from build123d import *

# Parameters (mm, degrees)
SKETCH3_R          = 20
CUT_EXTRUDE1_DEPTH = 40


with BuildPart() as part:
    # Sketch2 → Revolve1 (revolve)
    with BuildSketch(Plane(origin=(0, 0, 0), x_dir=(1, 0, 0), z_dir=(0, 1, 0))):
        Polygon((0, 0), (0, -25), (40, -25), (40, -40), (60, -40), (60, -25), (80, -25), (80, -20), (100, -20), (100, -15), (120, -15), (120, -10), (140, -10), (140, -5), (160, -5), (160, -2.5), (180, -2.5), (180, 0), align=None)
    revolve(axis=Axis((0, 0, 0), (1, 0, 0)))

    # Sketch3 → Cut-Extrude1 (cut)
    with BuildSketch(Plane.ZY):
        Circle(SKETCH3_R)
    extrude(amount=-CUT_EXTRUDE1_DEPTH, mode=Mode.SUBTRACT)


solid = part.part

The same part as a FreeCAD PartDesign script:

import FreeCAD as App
import Part
import Sketcher

V = App.Vector

doc = App.newDocument("Part")
body = doc.addObject("PartDesign::Body", "Body")

sketch1 = doc.addObject("Sketcher::SketchObject", "Sketch")
body.addObject(sketch1)
sketch1.AttachmentSupport = (doc.XZ_Plane, [""])
sketch1.MapMode = "FlatFace"
sketch1.addGeometry([
    Part.LineSegment(V(0, 0, 0), V(0, 25, 0)),
    Part.LineSegment(V(0, 25, 0), V(40, 25, 0)),
    Part.LineSegment(V(40, 25, 0), V(40, 40, 0)),
    Part.LineSegment(V(40, 40, 0), V(60, 40, 0)),
    Part.LineSegment(V(60, 40, 0), V(60, 25, 0)),
    Part.LineSegment(V(60, 25, 0), V(80, 25, 0)),
    Part.LineSegment(V(80, 25, 0), V(80, 20, 0)),
    Part.LineSegment(V(80, 20, 0), V(100, 20, 0)),
    Part.LineSegment(V(100, 20, 0), V(100, 15, 0)),
    Part.LineSegment(V(100, 15, 0), V(120, 15, 0)),
    Part.LineSegment(V(120, 15, 0), V(120, 10, 0)),
    Part.LineSegment(V(120, 10, 0), V(140, 10, 0)),
    Part.LineSegment(V(140, 10, 0), V(140, 5, 0)),
    Part.LineSegment(V(140, 5, 0), V(160, 5, 0)),
    Part.LineSegment(V(160, 5, 0), V(160, 2.5, 0)),
    Part.LineSegment(V(160, 2.5, 0), V(180, 2.5, 0)),
    Part.LineSegment(V(180, 2.5, 0), V(180, 0, 0)),
    Part.LineSegment(V(180, 0, 0), V(0, 0, 0)),
], False)
sketch1.addConstraint([
    Sketcher.Constraint("Coincident", 0, 2, 1, 1),
    Sketcher.Constraint("Coincident", 1, 2, 2, 1),
    Sketcher.Constraint("Coincident", 2, 2, 3, 1),
    Sketcher.Constraint("Coincident", 3, 2, 4, 1),
    Sketcher.Constraint("Coincident", 4, 2, 5, 1),
    Sketcher.Constraint("Coincident", 5, 2, 6, 1),
    Sketcher.Constraint("Coincident", 6, 2, 7, 1),
    Sketcher.Constraint("Coincident", 7, 2, 8, 1),
    Sketcher.Constraint("Coincident", 8, 2, 9, 1),
    Sketcher.Constraint("Coincident", 9, 2, 10, 1),
    Sketcher.Constraint("Coincident", 10, 2, 11, 1),
    Sketcher.Constraint("Coincident", 11, 2, 12, 1),
    Sketcher.Constraint("Coincident", 12, 2, 13, 1),
    Sketcher.Constraint("Coincident", 13, 2, 14, 1),
    Sketcher.Constraint("Coincident", 14, 2, 15, 1),
    Sketcher.Constraint("Coincident", 15, 2, 16, 1),
    Sketcher.Constraint("Coincident", 16, 2, 17, 1),
    Sketcher.Constraint("Coincident", 17, 2, 0, 1),
    Sketcher.Constraint("Vertical", 0),
    Sketcher.Constraint("Horizontal", 1),
    Sketcher.Constraint("Vertical", 2),
    Sketcher.Constraint("Horizontal", 3),
    Sketcher.Constraint("Vertical", 4),
    Sketcher.Constraint("Horizontal", 5),
    Sketcher.Constraint("Vertical", 6),
    Sketcher.Constraint("Horizontal", 7),
    Sketcher.Constraint("Vertical", 8),
    Sketcher.Constraint("Horizontal", 9),
    Sketcher.Constraint("Vertical", 10),
    Sketcher.Constraint("Horizontal", 11),
    Sketcher.Constraint("Vertical", 12),
    Sketcher.Constraint("Horizontal", 13),
    Sketcher.Constraint("Vertical", 14),
    Sketcher.Constraint("Horizontal", 15),
    Sketcher.Constraint("Vertical", 16),
    Sketcher.Constraint("Horizontal", 17),
    Sketcher.Constraint("Coincident", 17, 2, -1, 1),
    Sketcher.Constraint("Horizontal", 1, 2, 4, 2),
    Sketcher.Constraint("Equal", 3, 5),
    Sketcher.Constraint("Equal", 5, 7),
    Sketcher.Constraint("Equal", 7, 9),
    Sketcher.Constraint("Equal", 9, 11),
    Sketcher.Constraint("Equal", 11, 13),
    Sketcher.Constraint("Equal", 13, 15),
    Sketcher.Constraint("Equal", 6, 8),
    Sketcher.Constraint("Equal", 8, 10),
    Sketcher.Constraint("Equal", 10, 12),
    Sketcher.Constraint("Equal", 14, 16),
    Sketcher.Constraint("DistanceX", 1, 1, 1, 2, 40.0),
    Sketcher.Constraint("DistanceX", 3, 1, 3, 2, 20.0),
    Sketcher.Constraint("DistanceY", 0, 1, 0, 2, 25.0),
    Sketcher.Constraint("DistanceY", 2, 1, 2, 2, 15.0),
    Sketcher.Constraint("DistanceY", 6, 2, 6, 1, 5.0),
])
revolution = doc.addObject("PartDesign::Revolution", "Revolution")
body.addObject(revolution)
revolution.Profile = sketch1
revolution.ReferenceAxis = (sketch1, ["H_Axis"])
revolution.Angle = 360

sketch2 = doc.addObject("Sketcher::SketchObject", "Sketch001")
body.addObject(sketch2)
sketch2.AttachmentSupport = (doc.YZ_Plane, [""])
sketch2.MapMode = "FlatFace"
sketch2.addGeometry(Part.Circle(V(0, 0, 0), V(0, 0, 1), 20), False)
sketch2.addConstraint([
    Sketcher.Constraint("Coincident", 0, 3, -1, 1),
    Sketcher.Constraint("Diameter", 0, 40.0),
])
pocket1 = doc.addObject("PartDesign::Pocket", "Pocket")
body.addObject(pocket1)
pocket1.Profile = sketch2
pocket1.Length = 40
pocket1.Reversed = True

doc.recompute()
